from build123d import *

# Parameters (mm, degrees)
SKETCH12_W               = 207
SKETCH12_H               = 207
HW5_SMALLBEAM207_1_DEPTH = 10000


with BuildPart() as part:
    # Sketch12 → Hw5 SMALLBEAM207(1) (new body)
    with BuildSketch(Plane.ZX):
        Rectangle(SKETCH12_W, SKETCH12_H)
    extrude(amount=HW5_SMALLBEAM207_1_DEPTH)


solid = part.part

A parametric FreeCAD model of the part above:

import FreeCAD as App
import Part
import Sketcher
from FreeCAD import Vector
Q = App.Units.Quantity

doc = App.newDocument("Part")
body = doc.addObject("PartDesign::Body", "Body")

# Sketch on XZ plane
sketch1 = body.newObject("Sketcher::SketchObject", "Sketch")
sketch1.AttachmentSupport = (doc.getObject("XZ_Plane"), [""])
sketch1.MapMode = "FlatFace"
sketch1.addGeometry(Part.LineSegment(Vector(104, -104, 0), Vector(-104, -104, 0)), False)
sketch1.addGeometry(Part.LineSegment(Vector(-104, -104, 0), Vector(-104, 104, 0)), False)
sketch1.addGeometry(Part.LineSegment(Vector(-104, 104, 0), Vector(104, 104, 0)), False)
sketch1.addGeometry(Part.LineSegment(Vector(104, 104, 0), Vector(104, -104, 0)), False)
sketch1.addConstraint(Sketcher.Constraint("Coincident", 0, 2, 1, 1))
sketch1.addConstraint(Sketcher.Constraint("Coincident", 1, 2, 2, 1))
sketch1.addConstraint(Sketcher.Constraint("Coincident", 2, 2, 3, 1))
sketch1.addConstraint(Sketcher.Constraint("Coincident", 3, 2, 0, 1))
sketch1.addConstraint(Sketcher.Constraint("Horizontal", 0))
sketch1.addConstraint(Sketcher.Constraint("Vertical", 1))
sketch1.addConstraint(Sketcher.Constraint("Horizontal", 2))
sketch1.addConstraint(Sketcher.Constraint("Vertical", 3))
sketch1.addConstraint(Sketcher.Constraint("Symmetric", 0, 2, 2, 2, -1, 1))
sketch1.addConstraint(Sketcher.Constraint("Equal", 2, 1))
sketch1.addConstraint(Sketcher.Constraint("DistanceX", 0, 2, 0, 1, Q("207 mm")))
pad1 = body.newObject("PartDesign::Pad", "Pad")
pad1.Profile = sketch1
pad1.Length = 10000
pad1.Reversed = True

doc.recompute()
